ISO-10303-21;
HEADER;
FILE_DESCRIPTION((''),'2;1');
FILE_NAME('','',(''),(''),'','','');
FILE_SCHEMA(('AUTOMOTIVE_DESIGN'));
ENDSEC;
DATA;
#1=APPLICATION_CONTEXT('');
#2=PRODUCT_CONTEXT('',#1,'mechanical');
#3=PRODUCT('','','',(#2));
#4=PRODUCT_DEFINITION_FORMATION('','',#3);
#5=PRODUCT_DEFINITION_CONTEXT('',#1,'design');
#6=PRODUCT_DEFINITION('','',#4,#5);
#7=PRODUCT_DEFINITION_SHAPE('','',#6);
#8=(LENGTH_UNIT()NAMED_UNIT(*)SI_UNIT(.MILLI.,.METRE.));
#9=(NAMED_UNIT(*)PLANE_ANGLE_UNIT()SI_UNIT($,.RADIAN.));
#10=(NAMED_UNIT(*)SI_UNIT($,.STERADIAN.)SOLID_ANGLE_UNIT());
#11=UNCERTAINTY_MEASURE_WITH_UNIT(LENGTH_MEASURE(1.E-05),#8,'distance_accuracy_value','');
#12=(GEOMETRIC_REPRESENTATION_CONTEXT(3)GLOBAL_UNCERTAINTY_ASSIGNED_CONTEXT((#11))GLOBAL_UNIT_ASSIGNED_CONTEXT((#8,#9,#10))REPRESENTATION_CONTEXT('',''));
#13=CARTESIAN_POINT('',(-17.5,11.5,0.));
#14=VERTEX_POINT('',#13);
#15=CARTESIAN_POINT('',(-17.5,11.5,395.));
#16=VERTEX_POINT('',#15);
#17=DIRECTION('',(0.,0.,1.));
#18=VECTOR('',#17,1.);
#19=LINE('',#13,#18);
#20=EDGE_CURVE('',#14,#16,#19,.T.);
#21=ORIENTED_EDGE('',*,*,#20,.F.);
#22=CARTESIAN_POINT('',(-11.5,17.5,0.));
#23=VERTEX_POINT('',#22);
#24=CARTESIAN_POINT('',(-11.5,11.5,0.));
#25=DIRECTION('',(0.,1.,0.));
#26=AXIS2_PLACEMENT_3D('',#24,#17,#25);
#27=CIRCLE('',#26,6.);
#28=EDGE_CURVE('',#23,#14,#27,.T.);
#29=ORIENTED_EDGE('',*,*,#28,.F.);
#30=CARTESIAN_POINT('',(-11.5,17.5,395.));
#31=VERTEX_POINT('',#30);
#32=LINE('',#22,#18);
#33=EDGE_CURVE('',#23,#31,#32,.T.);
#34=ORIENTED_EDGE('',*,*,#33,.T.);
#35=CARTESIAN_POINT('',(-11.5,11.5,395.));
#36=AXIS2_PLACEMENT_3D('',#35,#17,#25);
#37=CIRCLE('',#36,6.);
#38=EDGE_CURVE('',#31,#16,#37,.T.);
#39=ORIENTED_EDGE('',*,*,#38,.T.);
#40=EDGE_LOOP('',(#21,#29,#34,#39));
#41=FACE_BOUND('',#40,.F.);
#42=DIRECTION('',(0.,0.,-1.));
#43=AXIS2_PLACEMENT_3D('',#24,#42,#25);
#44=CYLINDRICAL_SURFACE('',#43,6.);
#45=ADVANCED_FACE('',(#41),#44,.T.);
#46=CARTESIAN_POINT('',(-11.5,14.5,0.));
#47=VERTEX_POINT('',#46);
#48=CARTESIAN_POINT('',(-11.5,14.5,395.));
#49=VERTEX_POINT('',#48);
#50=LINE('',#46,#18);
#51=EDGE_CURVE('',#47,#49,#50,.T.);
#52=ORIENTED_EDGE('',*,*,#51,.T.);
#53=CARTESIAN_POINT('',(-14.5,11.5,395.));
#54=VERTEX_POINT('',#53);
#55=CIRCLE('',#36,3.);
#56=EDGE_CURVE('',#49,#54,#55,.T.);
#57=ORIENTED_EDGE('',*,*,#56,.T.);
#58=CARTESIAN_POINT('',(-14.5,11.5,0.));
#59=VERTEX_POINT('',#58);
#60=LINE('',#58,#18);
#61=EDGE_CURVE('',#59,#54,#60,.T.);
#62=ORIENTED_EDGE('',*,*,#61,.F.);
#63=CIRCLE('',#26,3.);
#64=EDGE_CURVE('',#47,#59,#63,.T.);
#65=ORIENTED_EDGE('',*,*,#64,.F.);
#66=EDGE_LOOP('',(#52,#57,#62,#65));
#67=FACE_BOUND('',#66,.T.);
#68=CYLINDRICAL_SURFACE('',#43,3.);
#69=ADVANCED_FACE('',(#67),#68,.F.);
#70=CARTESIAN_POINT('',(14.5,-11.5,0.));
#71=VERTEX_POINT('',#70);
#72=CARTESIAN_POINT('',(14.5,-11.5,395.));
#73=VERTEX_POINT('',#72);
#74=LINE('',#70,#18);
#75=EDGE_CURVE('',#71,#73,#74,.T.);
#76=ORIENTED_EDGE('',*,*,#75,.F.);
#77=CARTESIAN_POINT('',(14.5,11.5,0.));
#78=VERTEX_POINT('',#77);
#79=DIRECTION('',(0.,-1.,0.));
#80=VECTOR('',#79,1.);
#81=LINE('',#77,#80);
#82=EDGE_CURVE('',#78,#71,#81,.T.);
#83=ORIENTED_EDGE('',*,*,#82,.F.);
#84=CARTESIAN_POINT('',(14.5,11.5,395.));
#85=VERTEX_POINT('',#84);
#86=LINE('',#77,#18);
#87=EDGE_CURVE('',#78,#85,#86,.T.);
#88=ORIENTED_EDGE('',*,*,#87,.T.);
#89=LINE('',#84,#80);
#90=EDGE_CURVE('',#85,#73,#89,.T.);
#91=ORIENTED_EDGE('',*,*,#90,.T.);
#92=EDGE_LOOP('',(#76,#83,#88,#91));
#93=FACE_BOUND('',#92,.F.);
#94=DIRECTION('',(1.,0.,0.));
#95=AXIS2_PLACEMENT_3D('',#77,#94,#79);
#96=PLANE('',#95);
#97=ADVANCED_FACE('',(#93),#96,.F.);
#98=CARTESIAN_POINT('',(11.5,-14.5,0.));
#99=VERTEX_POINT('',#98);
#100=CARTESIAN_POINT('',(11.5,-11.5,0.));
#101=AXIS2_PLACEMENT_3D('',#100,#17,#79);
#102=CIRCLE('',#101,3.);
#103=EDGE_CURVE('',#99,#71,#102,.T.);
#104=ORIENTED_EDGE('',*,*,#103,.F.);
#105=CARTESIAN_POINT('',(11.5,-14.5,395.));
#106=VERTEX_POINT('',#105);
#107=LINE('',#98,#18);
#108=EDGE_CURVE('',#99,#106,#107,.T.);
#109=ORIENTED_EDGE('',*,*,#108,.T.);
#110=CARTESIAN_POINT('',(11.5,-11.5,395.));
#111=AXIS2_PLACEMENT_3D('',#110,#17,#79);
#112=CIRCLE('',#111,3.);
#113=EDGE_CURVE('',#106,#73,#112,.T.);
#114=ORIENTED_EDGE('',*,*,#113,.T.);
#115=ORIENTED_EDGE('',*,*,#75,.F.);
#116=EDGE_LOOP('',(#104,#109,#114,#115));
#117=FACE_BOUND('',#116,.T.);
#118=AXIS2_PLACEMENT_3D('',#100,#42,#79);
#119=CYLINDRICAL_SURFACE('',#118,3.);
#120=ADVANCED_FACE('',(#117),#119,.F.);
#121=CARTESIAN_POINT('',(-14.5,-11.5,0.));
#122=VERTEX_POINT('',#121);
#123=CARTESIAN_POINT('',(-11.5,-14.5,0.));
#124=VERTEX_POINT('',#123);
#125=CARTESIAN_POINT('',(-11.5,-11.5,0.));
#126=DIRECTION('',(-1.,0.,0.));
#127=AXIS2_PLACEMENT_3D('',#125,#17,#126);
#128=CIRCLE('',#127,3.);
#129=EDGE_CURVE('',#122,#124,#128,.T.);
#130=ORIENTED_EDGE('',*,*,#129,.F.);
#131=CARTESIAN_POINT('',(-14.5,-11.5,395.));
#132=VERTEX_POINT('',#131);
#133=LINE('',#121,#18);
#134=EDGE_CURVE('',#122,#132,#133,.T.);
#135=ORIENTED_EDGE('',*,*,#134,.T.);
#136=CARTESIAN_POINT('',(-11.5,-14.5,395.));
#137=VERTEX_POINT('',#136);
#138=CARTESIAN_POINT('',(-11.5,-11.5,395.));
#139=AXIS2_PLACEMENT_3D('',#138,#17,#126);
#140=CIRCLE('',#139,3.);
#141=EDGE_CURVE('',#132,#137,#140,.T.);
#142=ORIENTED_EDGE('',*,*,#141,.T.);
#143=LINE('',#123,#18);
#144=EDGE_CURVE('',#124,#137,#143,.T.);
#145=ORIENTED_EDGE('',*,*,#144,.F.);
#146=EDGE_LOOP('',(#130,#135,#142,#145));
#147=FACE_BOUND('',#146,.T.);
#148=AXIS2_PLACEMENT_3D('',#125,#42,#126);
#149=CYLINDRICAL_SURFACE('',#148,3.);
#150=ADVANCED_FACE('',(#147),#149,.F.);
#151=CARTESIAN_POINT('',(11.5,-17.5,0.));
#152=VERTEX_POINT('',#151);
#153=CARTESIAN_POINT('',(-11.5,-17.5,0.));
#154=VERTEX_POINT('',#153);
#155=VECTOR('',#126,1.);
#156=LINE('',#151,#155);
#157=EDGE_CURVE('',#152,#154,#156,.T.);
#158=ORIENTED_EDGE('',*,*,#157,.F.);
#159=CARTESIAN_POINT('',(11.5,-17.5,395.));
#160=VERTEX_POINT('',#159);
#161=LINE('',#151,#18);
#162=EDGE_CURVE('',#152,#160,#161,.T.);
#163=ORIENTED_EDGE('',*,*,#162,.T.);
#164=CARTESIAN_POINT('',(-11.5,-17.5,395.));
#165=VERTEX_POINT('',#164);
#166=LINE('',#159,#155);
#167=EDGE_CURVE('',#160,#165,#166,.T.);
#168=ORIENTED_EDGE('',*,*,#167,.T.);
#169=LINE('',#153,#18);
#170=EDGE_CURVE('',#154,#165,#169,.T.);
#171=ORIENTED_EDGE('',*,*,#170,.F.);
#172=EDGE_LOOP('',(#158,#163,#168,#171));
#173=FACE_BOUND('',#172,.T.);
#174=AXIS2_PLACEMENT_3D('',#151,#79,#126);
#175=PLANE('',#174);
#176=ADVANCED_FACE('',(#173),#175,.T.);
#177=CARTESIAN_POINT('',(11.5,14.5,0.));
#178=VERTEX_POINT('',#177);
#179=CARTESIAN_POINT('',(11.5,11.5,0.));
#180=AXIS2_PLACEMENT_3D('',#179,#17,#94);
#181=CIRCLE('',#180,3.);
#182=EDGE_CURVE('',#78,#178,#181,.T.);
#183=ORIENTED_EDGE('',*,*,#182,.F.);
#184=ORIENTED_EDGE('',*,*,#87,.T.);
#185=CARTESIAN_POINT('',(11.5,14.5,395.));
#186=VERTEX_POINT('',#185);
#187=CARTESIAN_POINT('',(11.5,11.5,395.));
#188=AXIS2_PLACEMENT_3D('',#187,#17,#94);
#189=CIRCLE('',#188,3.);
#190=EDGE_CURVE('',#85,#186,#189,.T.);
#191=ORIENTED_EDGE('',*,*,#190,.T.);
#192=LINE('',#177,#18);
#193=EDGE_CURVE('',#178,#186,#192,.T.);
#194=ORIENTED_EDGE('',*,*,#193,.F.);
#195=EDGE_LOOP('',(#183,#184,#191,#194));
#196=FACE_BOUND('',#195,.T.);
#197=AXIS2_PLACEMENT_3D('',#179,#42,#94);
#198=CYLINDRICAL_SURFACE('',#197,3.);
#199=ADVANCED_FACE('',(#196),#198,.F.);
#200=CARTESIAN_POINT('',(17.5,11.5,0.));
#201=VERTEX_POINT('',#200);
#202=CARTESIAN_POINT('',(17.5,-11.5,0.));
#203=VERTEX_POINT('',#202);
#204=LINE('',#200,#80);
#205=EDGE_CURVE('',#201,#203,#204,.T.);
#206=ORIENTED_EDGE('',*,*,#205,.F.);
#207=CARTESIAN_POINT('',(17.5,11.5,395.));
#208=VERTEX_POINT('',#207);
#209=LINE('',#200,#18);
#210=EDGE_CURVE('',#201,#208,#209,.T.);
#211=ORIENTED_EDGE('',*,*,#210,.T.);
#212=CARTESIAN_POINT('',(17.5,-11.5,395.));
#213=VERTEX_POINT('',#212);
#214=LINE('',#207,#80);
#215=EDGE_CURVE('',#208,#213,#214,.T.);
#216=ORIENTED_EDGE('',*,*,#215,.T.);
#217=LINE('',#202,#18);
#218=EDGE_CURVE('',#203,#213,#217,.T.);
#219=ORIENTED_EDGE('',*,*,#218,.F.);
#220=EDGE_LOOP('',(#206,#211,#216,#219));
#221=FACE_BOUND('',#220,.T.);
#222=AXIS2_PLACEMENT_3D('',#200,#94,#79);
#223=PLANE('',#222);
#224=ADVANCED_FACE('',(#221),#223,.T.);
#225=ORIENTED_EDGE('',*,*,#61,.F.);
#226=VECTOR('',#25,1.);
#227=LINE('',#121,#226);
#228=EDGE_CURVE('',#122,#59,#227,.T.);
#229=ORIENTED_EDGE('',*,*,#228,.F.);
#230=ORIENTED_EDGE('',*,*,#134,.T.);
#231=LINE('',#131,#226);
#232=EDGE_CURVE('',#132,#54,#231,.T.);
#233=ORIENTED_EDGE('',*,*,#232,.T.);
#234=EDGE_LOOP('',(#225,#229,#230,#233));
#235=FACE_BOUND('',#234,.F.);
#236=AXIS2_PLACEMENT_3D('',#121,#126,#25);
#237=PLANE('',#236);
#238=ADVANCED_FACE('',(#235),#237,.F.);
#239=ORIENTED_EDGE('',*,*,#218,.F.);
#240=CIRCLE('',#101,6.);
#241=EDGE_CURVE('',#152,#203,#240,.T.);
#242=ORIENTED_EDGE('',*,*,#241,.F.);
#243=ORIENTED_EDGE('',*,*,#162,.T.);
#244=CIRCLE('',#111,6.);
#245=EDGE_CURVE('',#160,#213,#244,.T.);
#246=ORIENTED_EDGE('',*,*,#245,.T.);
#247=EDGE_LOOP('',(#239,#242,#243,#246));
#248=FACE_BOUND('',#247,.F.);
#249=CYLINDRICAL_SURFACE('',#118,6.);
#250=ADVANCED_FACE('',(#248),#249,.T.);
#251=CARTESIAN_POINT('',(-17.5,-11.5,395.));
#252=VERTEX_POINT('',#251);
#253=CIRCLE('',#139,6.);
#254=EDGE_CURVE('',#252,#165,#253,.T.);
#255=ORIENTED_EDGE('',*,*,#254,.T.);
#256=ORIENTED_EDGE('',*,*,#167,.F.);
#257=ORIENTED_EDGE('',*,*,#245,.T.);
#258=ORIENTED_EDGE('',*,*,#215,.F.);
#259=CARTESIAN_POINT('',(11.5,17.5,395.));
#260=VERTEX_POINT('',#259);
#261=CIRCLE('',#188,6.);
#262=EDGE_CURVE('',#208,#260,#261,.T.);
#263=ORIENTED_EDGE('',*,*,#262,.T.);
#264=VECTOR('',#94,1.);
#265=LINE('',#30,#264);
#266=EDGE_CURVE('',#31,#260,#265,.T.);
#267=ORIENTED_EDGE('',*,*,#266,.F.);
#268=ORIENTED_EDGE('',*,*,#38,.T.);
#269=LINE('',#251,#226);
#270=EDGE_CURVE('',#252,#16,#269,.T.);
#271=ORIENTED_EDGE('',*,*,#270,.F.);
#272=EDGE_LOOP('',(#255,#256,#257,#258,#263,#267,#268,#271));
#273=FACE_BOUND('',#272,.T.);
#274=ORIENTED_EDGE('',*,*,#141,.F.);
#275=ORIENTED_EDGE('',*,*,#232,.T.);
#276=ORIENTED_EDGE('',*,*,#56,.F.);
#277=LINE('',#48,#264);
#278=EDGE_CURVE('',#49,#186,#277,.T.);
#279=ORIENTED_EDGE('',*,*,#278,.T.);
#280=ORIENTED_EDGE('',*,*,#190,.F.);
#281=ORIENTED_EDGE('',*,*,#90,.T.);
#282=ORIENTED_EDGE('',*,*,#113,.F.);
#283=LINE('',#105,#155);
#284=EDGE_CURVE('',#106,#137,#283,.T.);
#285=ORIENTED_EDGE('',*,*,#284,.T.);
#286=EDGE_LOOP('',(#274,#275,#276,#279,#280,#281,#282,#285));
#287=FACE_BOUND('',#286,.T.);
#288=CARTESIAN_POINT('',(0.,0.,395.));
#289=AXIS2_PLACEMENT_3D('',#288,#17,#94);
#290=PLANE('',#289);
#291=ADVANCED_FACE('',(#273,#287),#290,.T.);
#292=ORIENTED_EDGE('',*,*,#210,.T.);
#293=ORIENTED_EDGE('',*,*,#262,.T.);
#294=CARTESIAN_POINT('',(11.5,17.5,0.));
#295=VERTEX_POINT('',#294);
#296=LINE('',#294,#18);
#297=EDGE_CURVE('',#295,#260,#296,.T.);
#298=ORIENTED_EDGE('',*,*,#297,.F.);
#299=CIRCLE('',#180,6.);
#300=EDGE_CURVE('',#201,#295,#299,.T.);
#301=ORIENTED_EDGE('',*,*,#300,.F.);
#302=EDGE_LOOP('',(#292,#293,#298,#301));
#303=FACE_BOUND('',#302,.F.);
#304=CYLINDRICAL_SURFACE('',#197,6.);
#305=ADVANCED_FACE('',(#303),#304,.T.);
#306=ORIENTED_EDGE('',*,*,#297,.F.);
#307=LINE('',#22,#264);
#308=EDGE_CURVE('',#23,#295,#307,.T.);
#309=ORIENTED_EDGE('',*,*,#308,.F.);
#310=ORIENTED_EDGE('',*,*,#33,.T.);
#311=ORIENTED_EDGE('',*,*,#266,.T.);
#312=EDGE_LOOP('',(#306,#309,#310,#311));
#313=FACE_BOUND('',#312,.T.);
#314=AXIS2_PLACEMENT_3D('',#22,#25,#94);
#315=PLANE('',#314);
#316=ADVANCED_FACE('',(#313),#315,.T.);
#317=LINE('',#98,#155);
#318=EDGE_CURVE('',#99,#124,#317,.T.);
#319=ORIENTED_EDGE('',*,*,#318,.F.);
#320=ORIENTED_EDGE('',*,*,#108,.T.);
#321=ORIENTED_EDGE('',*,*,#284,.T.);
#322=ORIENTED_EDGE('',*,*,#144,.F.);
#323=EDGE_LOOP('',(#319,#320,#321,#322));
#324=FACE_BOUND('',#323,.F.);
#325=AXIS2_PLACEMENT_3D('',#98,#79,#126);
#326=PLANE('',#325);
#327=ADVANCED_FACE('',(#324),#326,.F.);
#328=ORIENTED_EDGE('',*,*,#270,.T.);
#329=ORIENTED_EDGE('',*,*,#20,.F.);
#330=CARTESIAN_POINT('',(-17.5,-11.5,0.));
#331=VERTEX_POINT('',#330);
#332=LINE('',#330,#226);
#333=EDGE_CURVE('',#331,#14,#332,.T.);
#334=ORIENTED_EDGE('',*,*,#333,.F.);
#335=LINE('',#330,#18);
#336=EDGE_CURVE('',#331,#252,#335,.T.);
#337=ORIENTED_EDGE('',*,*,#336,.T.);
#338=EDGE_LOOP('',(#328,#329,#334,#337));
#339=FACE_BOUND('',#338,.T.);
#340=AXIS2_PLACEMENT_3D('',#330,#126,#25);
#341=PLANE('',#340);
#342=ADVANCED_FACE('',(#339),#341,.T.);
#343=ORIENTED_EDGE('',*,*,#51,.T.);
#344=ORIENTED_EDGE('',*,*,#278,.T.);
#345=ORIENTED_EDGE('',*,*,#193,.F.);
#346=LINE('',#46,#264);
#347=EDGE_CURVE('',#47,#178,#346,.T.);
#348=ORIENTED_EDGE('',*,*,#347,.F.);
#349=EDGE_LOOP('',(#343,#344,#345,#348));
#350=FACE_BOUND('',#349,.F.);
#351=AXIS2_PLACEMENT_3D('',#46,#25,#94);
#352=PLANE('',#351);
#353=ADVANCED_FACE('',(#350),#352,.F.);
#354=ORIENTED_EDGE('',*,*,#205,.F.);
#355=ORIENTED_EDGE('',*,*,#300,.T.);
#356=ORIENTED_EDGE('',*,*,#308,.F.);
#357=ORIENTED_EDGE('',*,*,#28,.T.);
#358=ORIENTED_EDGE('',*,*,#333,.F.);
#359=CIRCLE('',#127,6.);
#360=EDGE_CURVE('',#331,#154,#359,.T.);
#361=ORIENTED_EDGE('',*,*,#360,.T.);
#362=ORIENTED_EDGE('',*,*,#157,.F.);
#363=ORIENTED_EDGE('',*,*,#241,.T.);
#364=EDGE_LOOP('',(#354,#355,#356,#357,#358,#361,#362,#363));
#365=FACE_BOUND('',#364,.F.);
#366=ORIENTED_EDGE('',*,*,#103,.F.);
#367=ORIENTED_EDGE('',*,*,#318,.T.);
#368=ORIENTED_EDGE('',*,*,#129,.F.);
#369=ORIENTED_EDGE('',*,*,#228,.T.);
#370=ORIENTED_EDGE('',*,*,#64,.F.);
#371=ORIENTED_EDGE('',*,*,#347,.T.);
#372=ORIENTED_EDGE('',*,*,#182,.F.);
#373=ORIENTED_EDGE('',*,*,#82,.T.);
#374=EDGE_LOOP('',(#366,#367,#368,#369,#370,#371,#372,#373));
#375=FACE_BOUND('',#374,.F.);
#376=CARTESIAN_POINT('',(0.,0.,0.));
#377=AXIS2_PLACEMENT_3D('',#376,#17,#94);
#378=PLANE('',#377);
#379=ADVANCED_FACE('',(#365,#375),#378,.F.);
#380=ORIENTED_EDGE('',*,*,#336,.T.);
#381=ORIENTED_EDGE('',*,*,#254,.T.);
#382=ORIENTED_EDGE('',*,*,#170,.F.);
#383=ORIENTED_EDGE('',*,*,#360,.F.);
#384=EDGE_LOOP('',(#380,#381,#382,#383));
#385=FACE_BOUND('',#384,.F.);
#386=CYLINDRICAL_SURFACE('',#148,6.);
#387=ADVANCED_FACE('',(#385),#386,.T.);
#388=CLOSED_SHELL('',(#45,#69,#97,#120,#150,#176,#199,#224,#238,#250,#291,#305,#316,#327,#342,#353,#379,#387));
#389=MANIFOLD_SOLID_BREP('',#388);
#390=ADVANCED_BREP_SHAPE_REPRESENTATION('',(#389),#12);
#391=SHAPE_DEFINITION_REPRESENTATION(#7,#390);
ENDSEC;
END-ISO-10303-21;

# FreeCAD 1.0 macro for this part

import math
import FreeCAD as App
import Part
import Sketcher

V = App.Vector
Q = App.Units.Quantity

doc = App.newDocument("Part")
params = doc.addObject("Spreadsheet::Sheet", "Params")
for row, (alias, value) in enumerate([
    ("sketch1_radius", "6 mm"),
    ("sketch1_radius2", "3 mm"),
    ("pad1_length", "395 mm"),
], start=1):
    params.set(f"A{row}", alias)
    params.set(f"B{row}", "=" + value)
    params.setAlias(f"B{row}", alias)

body = doc.addObject("PartDesign::Body", "Body")

# Sketch on XY plane
sketch1 = body.newObject("Sketcher::SketchObject", "Sketch")
sketch1.AttachmentSupport = (doc.getObject("XY_Plane"), [""])
sketch1.MapMode = "FlatFace"
sketch1.addGeometry([
    Part.LineSegment(V(-17.5, 11.5, 0), V(-17.5, -11.5, 0)),  # 0
    Part.ArcOfCircle(Part.Circle(V(-11.5, -11.5, 0), V(0, 0, 1), 6), math.radians(180), math.radians(270)),  # 1
    Part.LineSegment(V(-11.5, -17.5, 0), V(11.5, -17.5, 0)),  # 2
    Part.ArcOfCircle(Part.Circle(V(11.5, -11.5, 0), V(0, 0, 1), 6), math.radians(-90), math.radians(0)),  # 3
    Part.LineSegment(V(17.5, -11.5, 0), V(17.5, 11.5, 0)),  # 4
    Part.ArcOfCircle(Part.Circle(V(11.5, 11.5, 0), V(0, 0, 1), 6), math.radians(0), math.radians(90)),  # 5
    Part.LineSegment(V(11.5, 17.5, 0), V(-11.5, 17.5, 0)),  # 6
    Part.ArcOfCircle(Part.Circle(V(-11.5, 11.5, 0), V(0, 0, 1), 6), math.radians(90), math.radians(180)),  # 7
    Part.ArcOfCircle(Part.Circle(V(-11.5, 11.5, 0), V(0, 0, 1), 3), math.radians(90), math.radians(180)),  # 8
    Part.LineSegment(V(-11.5, 14.5, 0), V(11.5, 14.5, 0)),  # 9
    Part.ArcOfCircle(Part.Circle(V(11.5, 11.5, 0), V(0, 0, 1), 3), math.radians(0), math.radians(90)),  # 10
    Part.LineSegment(V(14.5, 11.5, 0), V(14.5, -11.5, 0)),  # 11
    Part.ArcOfCircle(Part.Circle(V(11.5, -11.5, 0), V(0, 0, 1), 3), math.radians(-90), math.radians(0)),  # 12
    Part.LineSegment(V(11.5, -14.5, 0), V(-11.5, -14.5, 0)),  # 13
    Part.ArcOfCircle(Part.Circle(V(-11.5, -11.5, 0), V(0, 0, 1), 3), math.radians(180), math.radians(270)),  # 14
    Part.LineSegment(V(-14.5, -11.5, 0), V(-14.5, 11.5, 0)),  # 15
], False)
sketch1.addConstraint([
    Sketcher.Constraint("Tangent", 0, 2, 1, 1),
    Sketcher.Constraint("Tangent", 1, 2, 2, 1),
    Sketcher.Constraint("Tangent", 2, 2, 3, 1),
    Sketcher.Constraint("Tangent", 3, 2, 4, 1),
    Sketcher.Constraint("Tangent", 4, 2, 5, 1),
    Sketcher.Constraint("Tangent", 5, 2, 6, 1),
    Sketcher.Constraint("Tangent", 6, 2, 7, 1),
    Sketcher.Constraint("Tangent", 7, 2, 0, 1),
    Sketcher.Constraint("Tangent", 8, 1, 9, 1),
    Sketcher.Constraint("Tangent", 9, 2, 10, 2),
    Sketcher.Constraint("Tangent", 10, 1, 11, 1),
    Sketcher.Constraint("Tangent", 11, 2, 12, 2),
    Sketcher.Constraint("Tangent", 12, 1, 13, 1),
    Sketcher.Constraint("Tangent", 13, 2, 14, 2),
    Sketcher.Constraint("Tangent", 14, 1, 15, 1),
    Sketcher.Constraint("Tangent", 15, 2, 8, 2),
    Sketcher.Constraint("Vertical", 0),
    Sketcher.Constraint("Horizontal", 2),
    Sketcher.Constraint("Vertical", 4),
    Sketcher.Constraint("Horizontal", 6),
    Sketcher.Constraint("Horizontal", 9),
    Sketcher.Constraint("Vertical", 11),
    Sketcher.Constraint("Horizontal", 13),
    Sketcher.Constraint("Vertical", 15),
    Sketcher.Constraint("Coincident", 8, 3, 7, 3),
    Sketcher.Constraint("Coincident", 10, 3, 5, 3),
    Sketcher.Constraint("Coincident", 12, 3, 3, 3),
    Sketcher.Constraint("Equal", 1, 3),
    Sketcher.Constraint("Equal", 3, 5),
    Sketcher.Constraint("Equal", 5, 7),
    Sketcher.Constraint("Equal", 12, 14),
    Sketcher.Constraint("Symmetric", 1, 3, 5, 3, -1, 1),
    Sketcher.Constraint("Equal", 13, 0),
    Sketcher.Constraint("Radius", 1, Q("6 mm")),
    Sketcher.Constraint("Radius", 8, Q("3 mm")),
    Sketcher.Constraint("DistanceX", 0, 2, -1, 1, Q("17.5 mm")),
])
sketch1.setExpression("Constraints[33]", "Params.sketch1_radius")
sketch1.setExpression("Constraints[34]", "Params.sketch1_radius2")
pad1 = body.newObject("PartDesign::Pad", "Pad")
pad1.Profile = sketch1
pad1.setExpression("Length", "Params.pad1_length")

doc.recompute()
